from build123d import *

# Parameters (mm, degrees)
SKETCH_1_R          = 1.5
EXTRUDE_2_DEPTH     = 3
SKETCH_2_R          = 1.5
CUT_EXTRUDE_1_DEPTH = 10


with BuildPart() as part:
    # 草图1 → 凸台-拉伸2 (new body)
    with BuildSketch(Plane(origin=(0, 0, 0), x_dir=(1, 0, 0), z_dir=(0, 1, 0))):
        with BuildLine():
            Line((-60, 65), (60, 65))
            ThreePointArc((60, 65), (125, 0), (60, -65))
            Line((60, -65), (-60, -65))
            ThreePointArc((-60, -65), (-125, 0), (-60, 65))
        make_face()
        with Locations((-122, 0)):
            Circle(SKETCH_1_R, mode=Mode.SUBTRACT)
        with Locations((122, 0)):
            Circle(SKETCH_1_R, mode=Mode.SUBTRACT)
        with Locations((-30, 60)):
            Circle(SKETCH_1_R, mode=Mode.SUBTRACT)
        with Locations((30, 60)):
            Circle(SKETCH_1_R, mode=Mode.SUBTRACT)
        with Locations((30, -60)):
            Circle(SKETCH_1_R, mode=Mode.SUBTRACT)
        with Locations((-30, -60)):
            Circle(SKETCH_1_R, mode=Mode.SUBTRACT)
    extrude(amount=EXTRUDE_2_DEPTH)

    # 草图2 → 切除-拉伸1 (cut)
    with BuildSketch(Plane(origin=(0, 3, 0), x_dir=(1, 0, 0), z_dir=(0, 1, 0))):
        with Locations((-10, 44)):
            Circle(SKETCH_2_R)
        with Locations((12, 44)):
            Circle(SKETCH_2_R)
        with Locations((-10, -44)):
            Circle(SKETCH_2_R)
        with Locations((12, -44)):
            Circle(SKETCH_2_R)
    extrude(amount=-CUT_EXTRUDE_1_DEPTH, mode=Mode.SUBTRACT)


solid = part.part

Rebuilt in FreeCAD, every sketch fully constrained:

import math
import FreeCAD as App
import Part
import Sketcher
from FreeCAD import Vector
Q = App.Units.Quantity

doc = App.newDocument("Part")
body = doc.addObject("PartDesign::Body", "Body")

# Sketch on XZ plane
sketch1 = doc.addObject("Sketcher::SketchObject", "Sketch")
body.addObject(sketch1)
sketch1.AttachmentSupport = (doc.XZ_Plane, [""])
sketch1.MapMode = "FlatFace"
sketch1.addGeometry(Part.LineSegment(Vector(60, -65, 0), Vector(-60, -65, 0)), False)
sketch1.addGeometry(Part.ArcOfCircle(Part.Circle(Vector(-60, 0, 0), Vector(0, 0, 1), 65), math.radians(90), math.radians(270)), False)
sketch1.addGeometry(Part.LineSegment(Vector(-60, 65, 0), Vector(60, 65, 0)), False)
sketch1.addGeometry(Part.ArcOfCircle(Part.Circle(Vector(60, 0, 0), Vector(0, 0, 1), 65), math.radians(-90), math.radians(90)), False)
sketch1.addGeometry(Part.Circle(Vector(30, 60, 0), Vector(0, 0, 1), 1.5), False)
sketch1.addGeometry(Part.Circle(Vector(-30, 60, 0), Vector(0, 0, 1), 1.5), False)
sketch1.addGeometry(Part.Circle(Vector(122, 0, 0), Vector(0, 0, 1), 1.5), False)
sketch1.addGeometry(Part.Circle(Vector(30, -60, 0), Vector(0, 0, 1), 1.5), False)
sketch1.addGeometry(Part.Circle(Vector(-122, 0, 0), Vector(0, 0, 1), 1.5), False)
sketch1.addGeometry(Part.Circle(Vector(-30, -60, 0), Vector(0, 0, 1), 1.5), False)
sketch1.addConstraint(Sketcher.Constraint("Tangent", 0, 2, 1, 2))
sketch1.addConstraint(Sketcher.Constraint("Tangent", 1, 1, 2, 1))
sketch1.addConstraint(Sketcher.Constraint("Tangent", 2, 2, 3, 2))
sketch1.addConstraint(Sketcher.Constraint("Tangent", 3, 1, 0, 1))
sketch1.addConstraint(Sketcher.Constraint("Horizontal", 0))
sketch1.addConstraint(Sketcher.Constraint("Horizontal", 2))
sketch1.addConstraint(Sketcher.Constraint("Equal", 4, 5))
sketch1.addConstraint(Sketcher.Constraint("Equal", 5, 6))
sketch1.addConstraint(Sketcher.Constraint("Equal", 6, 7))
sketch1.addConstraint(Sketcher.Constraint("Equal", 7, 8))
sketch1.addConstraint(Sketcher.Constraint("Equal", 8, 9))
sketch1.addConstraint(Sketcher.Constraint("Symmetric", 1, 3, 3, 3, -1, 1))
sketch1.addConstraint(Sketcher.Constraint("Symmetric", 5, 3, 7, 3, -1, 1))
sketch1.addConstraint(Sketcher.Constraint("Symmetric", 6, 3, 8, 3, -1, 1))
sketch1.addConstraint(Sketcher.Constraint("Symmetric", 4, 3, 9, 3, -1, 1))
sketch1.addConstraint(Sketcher.Constraint("Symmetric", 4, 3, 5, 3, -2))
sketch1.addConstraint(Sketcher.Constraint("PointOnObject", 6, 3, -1))
sketch1.addConstraint(Sketcher.Constraint("Diameter", 4, Q("3 mm")))
sketch1.addConstraint(Sketcher.Constraint("Radius", 1, Q("65 mm")))
sketch1.addConstraint(Sketcher.Constraint("DistanceX", 0, 2, 0, 1, Q("120 mm")))
sketch1.addConstraint(Sketcher.Constraint("DistanceX", -1, 1, 4, 3, Q("30 mm")))
sketch1.addConstraint(Sketcher.Constraint("DistanceY", -1, 1, 4, 3, Q("60 mm")))
sketch1.addConstraint(Sketcher.Constraint("DistanceX", -1, 1, 6, 3, Q("122 mm")))
pad1 = doc.addObject("PartDesign::Pad", "Pad")
body.addObject(pad1)
pad1.Profile = sketch1
pad1.Length = 3
pad1.Reversed = True

# Sketch on XZ plane
sketch2 = doc.addObject("Sketcher::SketchObject", "Sketch001")
body.addObject(sketch2)
sketch2.AttachmentSupport = (doc.XZ_Plane, [""])
sketch2.MapMode = "FlatFace"
sketch2.AttachmentOffset = App.Placement(Vector(0, 0, -3), App.Rotation())
sketch2.addGeometry(Part.Circle(Vector(-10, -44, 0), Vector(0, 0, 1), 1.5), False)
sketch2.addGeometry(Part.Circle(Vector(12, -44, 0), Vector(0, 0, 1), 1.5), False)
sketch2.addGeometry(Part.Circle(Vector(-10, 44, 0), Vector(0, 0, 1), 1.5), False)
sketch2.addGeometry(Part.Circle(Vector(12, 44, 0), Vector(0, 0, 1), 1.5), False)
sketch2.addConstraint(Sketcher.Constraint("Equal", 0, 1))
sketch2.addConstraint(Sketcher.Constraint("Equal", 1, 2))
sketch2.addConstraint(Sketcher.Constraint("Equal", 2, 3))
sketch2.addConstraint(Sketcher.Constraint("Symmetric", 0, 3, 2, 3, -1))
sketch2.addConstraint(Sketcher.Constraint("Symmetric", 1, 3, 3, 3, -1))
sketch2.addConstraint(Sketcher.Constraint("Horizontal", 0, 3, 1, 3))
sketch2.addConstraint(Sketcher.Constraint("Diameter", 0, Q("3 mm")))
sketch2.addConstraint(Sketcher.Constraint("DistanceX", 0, 3, -1, 1, Q("10 mm")))
sketch2.addConstraint(Sketcher.Constraint("DistanceY", 0, 3, -1, 1, Q("44 mm")))
sketch2.addConstraint(Sketcher.Constraint("DistanceX", -1, 1, 1, 3, Q("12 mm")))
pocket1 = doc.addObject("PartDesign::Pocket", "Pocket")
body.addObject(pocket1)
pocket1.Profile = sketch2
pocket1.Length = 10
pocket1.Reversed = True

doc.recompute()
